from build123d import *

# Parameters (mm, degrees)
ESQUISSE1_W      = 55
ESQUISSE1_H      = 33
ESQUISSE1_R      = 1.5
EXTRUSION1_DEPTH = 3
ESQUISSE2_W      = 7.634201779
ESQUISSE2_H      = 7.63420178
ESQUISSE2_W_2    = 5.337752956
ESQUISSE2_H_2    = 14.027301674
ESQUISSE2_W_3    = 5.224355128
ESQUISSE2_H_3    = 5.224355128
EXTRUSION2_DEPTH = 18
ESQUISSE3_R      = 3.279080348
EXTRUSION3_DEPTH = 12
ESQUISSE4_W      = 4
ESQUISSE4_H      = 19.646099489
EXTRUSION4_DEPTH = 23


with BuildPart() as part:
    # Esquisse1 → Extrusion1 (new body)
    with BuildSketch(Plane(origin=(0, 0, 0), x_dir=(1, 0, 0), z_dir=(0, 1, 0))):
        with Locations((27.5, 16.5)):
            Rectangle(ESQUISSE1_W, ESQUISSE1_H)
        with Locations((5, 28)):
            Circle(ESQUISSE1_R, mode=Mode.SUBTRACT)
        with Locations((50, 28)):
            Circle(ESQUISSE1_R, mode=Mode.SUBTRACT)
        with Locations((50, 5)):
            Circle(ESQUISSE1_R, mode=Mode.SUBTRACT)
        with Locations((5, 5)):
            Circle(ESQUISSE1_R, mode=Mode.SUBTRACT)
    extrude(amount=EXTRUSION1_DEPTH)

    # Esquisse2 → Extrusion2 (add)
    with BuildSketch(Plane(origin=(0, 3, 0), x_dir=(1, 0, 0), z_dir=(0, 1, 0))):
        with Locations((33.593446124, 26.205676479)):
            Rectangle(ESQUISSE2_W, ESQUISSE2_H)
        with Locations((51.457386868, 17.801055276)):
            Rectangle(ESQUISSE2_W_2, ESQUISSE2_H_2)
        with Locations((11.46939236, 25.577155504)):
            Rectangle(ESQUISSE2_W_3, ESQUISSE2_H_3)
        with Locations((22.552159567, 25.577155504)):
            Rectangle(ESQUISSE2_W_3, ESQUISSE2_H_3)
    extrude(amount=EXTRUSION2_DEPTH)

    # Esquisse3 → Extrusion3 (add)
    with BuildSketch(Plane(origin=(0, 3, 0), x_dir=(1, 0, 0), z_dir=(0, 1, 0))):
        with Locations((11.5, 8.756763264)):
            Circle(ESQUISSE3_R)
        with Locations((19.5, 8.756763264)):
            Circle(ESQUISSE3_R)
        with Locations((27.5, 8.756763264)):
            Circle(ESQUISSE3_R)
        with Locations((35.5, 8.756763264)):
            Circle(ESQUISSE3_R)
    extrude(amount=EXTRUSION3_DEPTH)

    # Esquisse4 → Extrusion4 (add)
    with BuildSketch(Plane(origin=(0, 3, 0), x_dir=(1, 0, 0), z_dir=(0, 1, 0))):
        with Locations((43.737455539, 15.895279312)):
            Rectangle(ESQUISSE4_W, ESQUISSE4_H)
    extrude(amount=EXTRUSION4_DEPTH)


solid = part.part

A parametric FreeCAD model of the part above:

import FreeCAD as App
import Part
import Sketcher

doc = App.newDocument("Part")
body = doc.addObject("PartDesign::Body", "Body")

sketch1 = doc.addObject("Sketcher::SketchObject", "Sketch")
body.addObject(sketch1)
sketch1.AttachmentSupport = (doc.XZ_Plane, [""])
sketch1.MapMode = "FlatFace"
sketch1.addGeometry([
    Part.LineSegment(App.Vector(0, -33, 0), App.Vector(0, 0, 0)),
    Part.LineSegment(App.Vector(0, 0, 0), App.Vector(55, 0, 0)),
    Part.LineSegment(App.Vector(55, 0, 0), App.Vector(55, -33, 0)),
    Part.LineSegment(App.Vector(55, -33, 0), App.Vector(0, -33, 0)),
    Part.Circle(App.Vector(5, -5, 0), App.Vector(0, 0, 1), 1.5),
    Part.Circle(App.Vector(50, -5, 0), App.Vector(0, 0, 1), 1.5),
    Part.Circle(App.Vector(5, -28, 0), App.Vector(0, 0, 1), 1.5),
    Part.Circle(App.Vector(50, -28, 0), App.Vector(0, 0, 1), 1.5),
], False)
sketch1.addConstraint([
    Sketcher.Constraint("Coincident", 0, 2, 1, 1),
    Sketcher.Constraint("Coincident", 1, 2, 2, 1),
    Sketcher.Constraint("Coincident", 2, 2, 3, 1),
    Sketcher.Constraint("Coincident", 3, 2, 0, 1),
    Sketcher.Constraint("Vertical", 0),
    Sketcher.Constraint("Horizontal", 1),
    Sketcher.Constraint("Vertical", 2),
    Sketcher.Constraint("Horizontal", 3),
    Sketcher.Constraint("Coincident", 0, 2, -1, 1),
    Sketcher.Constraint("Equal", 4, 5),
    Sketcher.Constraint("Equal", 5, 6),
    Sketcher.Constraint("Equal", 6, 7),
    Sketcher.Constraint("Horizontal", 4, 3, 5, 3),
    Sketcher.Constraint("Horizontal", 6, 3, 7, 3),
    Sketcher.Constraint("Vertical", 4, 3, 6, 3),
    Sketcher.Constraint("Vertical", 5, 3, 7, 3),
    Sketcher.Constraint("Diameter", 4, 3.0),
    Sketcher.Constraint("DistanceX", 1, 1, 1, 2, 55.0),
    Sketcher.Constraint("DistanceY", 0, 1, 0, 2, 33.0),
    Sketcher.Constraint("DistanceX", -1, 1, 4, 3, 5.0),
    Sketcher.Constraint("DistanceY", 4, 3, -1, 1, 5.0),
    Sketcher.Constraint("DistanceX", -1, 1, 5, 3, 50.0),
    Sketcher.Constraint("DistanceY", 6, 3, -1, 1, 28.0),
])
pad1 = doc.addObject("PartDesign::Pad", "Pad")
body.addObject(pad1)
pad1.Profile = sketch1
pad1.Length = 3
pad1.Reversed = True

sketch2 = doc.addObject("Sketcher::SketchObject", "Sketch001")
body.addObject(sketch2)
sketch2.AttachmentSupport = (doc.XZ_Plane, [""])
sketch2.MapMode = "FlatFace"
sketch2.AttachmentOffset = App.Placement(App.Vector(0, 0, -3), App.Rotation())
sketch2.addGeometry([
    Part.LineSegment(App.Vector(30, -30, 0), App.Vector(30, -22, 0)),
    Part.LineSegment(App.Vector(30, -22, 0), App.Vector(37, -22, 0)),
    Part.LineSegment(App.Vector(37, -22, 0), App.Vector(37, -30, 0)),
    Part.LineSegment(App.Vector(37, -30, 0), App.Vector(30, -30, 0)),
    Part.LineSegment(App.Vector(49, -25, 0), App.Vector(49, -11, 0)),
    Part.LineSegment(App.Vector(49, -11, 0), App.Vector(54, -11, 0)),
    Part.LineSegment(App.Vector(54, -11, 0), App.Vector(54, -25, 0)),
    Part.LineSegment(App.Vector(54, -25, 0), App.Vector(49, -25, 0)),
    Part.LineSegment(App.Vector(9, -28, 0), App.Vector(9, -23, 0)),
    Part.LineSegment(App.Vector(9, -23, 0), App.Vector(14, -23, 0)),
    Part.LineSegment(App.Vector(14, -23, 0), App.Vector(14, -28, 0)),
    Part.LineSegment(App.Vector(14, -28, 0), App.Vector(9, -28, 0)),
    Part.LineSegment(App.Vector(20, -28, 0), App.Vector(20, -23, 0)),
    Part.LineSegment(App.Vector(20, -23, 0), App.Vector(25, -23, 0)),
    Part.LineSegment(App.Vector(25, -23, 0), App.Vector(25, -28, 0)),
    Part.LineSegment(App.Vector(25, -28, 0), App.Vector(20, -28, 0)),
], False)
sketch2.addConstraint([
    Sketcher.Constraint("Coincident", 0, 2, 1, 1),
    Sketcher.Constraint("Coincident", 1, 2, 2, 1),
    Sketcher.Constraint("Coincident", 2, 2, 3, 1),
    Sketcher.Constraint("Coincident", 3, 2, 0, 1),
    Sketcher.Constraint("Coincident", 4, 2, 5, 1),
    Sketcher.Constraint("Coincident", 5, 2, 6, 1),
    Sketcher.Constraint("Coincident", 6, 2, 7, 1),
    Sketcher.Constraint("Coincident", 7, 2, 4, 1),
    Sketcher.Constraint("Coincident", 8, 2, 9, 1),
    Sketcher.Constraint("Coincident", 9, 2, 10, 1),
    Sketcher.Constraint("Coincident", 10, 2, 11, 1),
    Sketcher.Constraint("Coincident", 11, 2, 8, 1),
    Sketcher.Constraint("Coincident", 12, 2, 13, 1),
    Sketcher.Constraint("Coincident", 13, 2, 14, 1),
    Sketcher.Constraint("Coincident", 14, 2, 15, 1),
    Sketcher.Constraint("Coincident", 15, 2, 12, 1),
    Sketcher.Constraint("Vertical", 0),
    Sketcher.Constraint("Horizontal", 1),
    Sketcher.Constraint("Vertical", 2),
    Sketcher.Constraint("Horizontal", 3),
    Sketcher.Constraint("Vertical", 4),
    Sketcher.Constraint("Horizontal", 5),
    Sketcher.Constraint("Vertical", 6),
    Sketcher.Constraint("Horizontal", 7),
    Sketcher.Constraint("Vertical", 8),
    Sketcher.Constraint("Horizontal", 9),
    Sketcher.Constraint("Vertical", 10),
    Sketcher.Constraint("Horizontal", 11),
    Sketcher.Constraint("Vertical", 12),
    Sketcher.Constraint("Horizontal", 13),
    Sketcher.Constraint("Vertical", 14),
    Sketcher.Constraint("Horizontal", 15),
    Sketcher.Constraint("Horizontal", 9, 2, 12, 2),
    Sketcher.Constraint("Horizontal", 11, 2, 14, 2),
    Sketcher.Constraint("Equal", 11, 13),
    Sketcher.Constraint("Equal", 3, 0),
    Sketcher.Constraint("Equal", 15, 8),
    Sketcher.Constraint("DistanceX", 1, 1, 1, 2, 7.634202),
    Sketcher.Constraint("DistanceY", 4, 1, 4, 2, 14.027302),
    Sketcher.Constraint("DistanceY", 3, 2, 8, 2, 7.057799),
    Sketcher.Constraint("DistanceX", 5, 1, 5, 2, 5.337753),
    Sketcher.Constraint("DistanceX", 9, 1, 9, 2, 5.224355),
    Sketcher.Constraint("DistanceX", -1, 1, 4, 2, 48.78851),
    Sketcher.Constraint("DistanceX", -1, 1, 9, 2, 14.08157),
    Sketcher.Constraint("DistanceY", 1, 2, 4, 2, 11.601171),
    Sketcher.Constraint("DistanceX", 0, 2, 5, 2, 24.349918),
    Sketcher.Constraint("DistanceX", 13, 2, 0, 2, 4.612008),
    Sketcher.Constraint("DistanceY", 0, 2, -1, 1, 22.388576),
])
pad2 = doc.addObject("PartDesign::Pad", "Pad001")
body.addObject(pad2)
pad2.Profile = sketch2
pad2.Length = 18
pad2.Reversed = True

sketch3 = doc.addObject("Sketcher::SketchObject", "Sketch002")
body.addObject(sketch3)
sketch3.AttachmentSupport = (doc.XZ_Plane, [""])
sketch3.MapMode = "FlatFace"
sketch3.AttachmentOffset = App.Placement(App.Vector(0, 0, -3), App.Rotation())
sketch3.addGeometry([
    Part.Circle(App.Vector(11.5, -8.8, 0), App.Vector(0, 0, 1), 3.3),
    Part.Circle(App.Vector(19.5, -8.8, 0), App.Vector(0, 0, 1), 3.3),
    Part.Circle(App.Vector(27.5, -8.8, 0), App.Vector(0, 0, 1), 3.3),
    Part.Circle(App.Vector(35.5, -8.8, 0), App.Vector(0, 0, 1), 3.3),
], False)
sketch3.addConstraint([
    Sketcher.Constraint("Equal", 0, 1),
    Sketcher.Constraint("Equal", 1, 2),
    Sketcher.Constraint("Equal", 2, 3),
    Sketcher.Constraint("Horizontal", 0, 3, 1, 3),
    Sketcher.Constraint("Horizontal", 1, 3, 2, 3),
    Sketcher.Constraint("Horizontal", 2, 3, 3, 3),
    Sketcher.Constraint("DistanceX", 0, 3, 1, 3, 8.0),
    Sketcher.Constraint("DistanceX", 1, 3, 2, 3, 8.0),
    Sketcher.Constraint("DistanceX", 2, 3, 3, 3, 8.0),
    Sketcher.Constraint("DistanceX", -1, 1, 0, 3, 11.5),
    Sketcher.Constraint("Diameter", 0, 6.558161),
    Sketcher.Constraint("DistanceY", 0, 3, -1, 1, 8.756763),
])
pad3 = doc.addObject("PartDesign::Pad", "Pad002")
body.addObject(pad3)
pad3.Profile = sketch3
pad3.Length = 12
pad3.Reversed = True

sketch4 = doc.addObject("Sketcher::SketchObject", "Sketch003")
body.addObject(sketch4)
sketch4.AttachmentSupport = (doc.XZ_Plane, [""])
sketch4.MapMode = "FlatFace"
sketch4.AttachmentOffset = App.Placement(App.Vector(0, 0, -3), App.Rotation())
sketch4.addGeometry([
    Part.LineSegment(App.Vector(41.7, -25.7, 0), App.Vector(41.7, -6.1, 0)),
    Part.LineSegment(App.Vector(41.7, -6.1, 0), App.Vector(45.7, -6.1, 0)),
    Part.LineSegment(App.Vector(45.7, -6.1, 0), App.Vector(45.7, -25.7, 0)),
    Part.LineSegment(App.Vector(45.7, -25.7, 0), App.Vector(41.7, -25.7, 0)),
], False)
sketch4.addConstraint([
    Sketcher.Constraint("Coincident", 0, 2, 1, 1),
    Sketcher.Constraint("Coincident", 1, 2, 2, 1),
    Sketcher.Constraint("Coincident", 2, 2, 3, 1),
    Sketcher.Constraint("Coincident", 3, 2, 0, 1),
    Sketcher.Constraint("Vertical", 0),
    Sketcher.Constraint("Horizontal", 1),
    Sketcher.Constraint("Vertical", 2),
    Sketcher.Constraint("Horizontal", 3),
    Sketcher.Constraint("DistanceX", 1, 1, 1, 2, 4.0),
    Sketcher.Constraint("DistanceY", 0, 1, 0, 2, 19.646099),
    Sketcher.Constraint("DistanceY", 0, 2, -1, 1, 6.07223),
    Sketcher.Constraint("DistanceX", -1, 1, 0, 2, 41.737456),
])
pad4 = doc.addObject("PartDesign::Pad", "Pad003")
body.addObject(pad4)
pad4.Profile = sketch4
pad4.Length = 23
pad4.Reversed = True

doc.recompute()
